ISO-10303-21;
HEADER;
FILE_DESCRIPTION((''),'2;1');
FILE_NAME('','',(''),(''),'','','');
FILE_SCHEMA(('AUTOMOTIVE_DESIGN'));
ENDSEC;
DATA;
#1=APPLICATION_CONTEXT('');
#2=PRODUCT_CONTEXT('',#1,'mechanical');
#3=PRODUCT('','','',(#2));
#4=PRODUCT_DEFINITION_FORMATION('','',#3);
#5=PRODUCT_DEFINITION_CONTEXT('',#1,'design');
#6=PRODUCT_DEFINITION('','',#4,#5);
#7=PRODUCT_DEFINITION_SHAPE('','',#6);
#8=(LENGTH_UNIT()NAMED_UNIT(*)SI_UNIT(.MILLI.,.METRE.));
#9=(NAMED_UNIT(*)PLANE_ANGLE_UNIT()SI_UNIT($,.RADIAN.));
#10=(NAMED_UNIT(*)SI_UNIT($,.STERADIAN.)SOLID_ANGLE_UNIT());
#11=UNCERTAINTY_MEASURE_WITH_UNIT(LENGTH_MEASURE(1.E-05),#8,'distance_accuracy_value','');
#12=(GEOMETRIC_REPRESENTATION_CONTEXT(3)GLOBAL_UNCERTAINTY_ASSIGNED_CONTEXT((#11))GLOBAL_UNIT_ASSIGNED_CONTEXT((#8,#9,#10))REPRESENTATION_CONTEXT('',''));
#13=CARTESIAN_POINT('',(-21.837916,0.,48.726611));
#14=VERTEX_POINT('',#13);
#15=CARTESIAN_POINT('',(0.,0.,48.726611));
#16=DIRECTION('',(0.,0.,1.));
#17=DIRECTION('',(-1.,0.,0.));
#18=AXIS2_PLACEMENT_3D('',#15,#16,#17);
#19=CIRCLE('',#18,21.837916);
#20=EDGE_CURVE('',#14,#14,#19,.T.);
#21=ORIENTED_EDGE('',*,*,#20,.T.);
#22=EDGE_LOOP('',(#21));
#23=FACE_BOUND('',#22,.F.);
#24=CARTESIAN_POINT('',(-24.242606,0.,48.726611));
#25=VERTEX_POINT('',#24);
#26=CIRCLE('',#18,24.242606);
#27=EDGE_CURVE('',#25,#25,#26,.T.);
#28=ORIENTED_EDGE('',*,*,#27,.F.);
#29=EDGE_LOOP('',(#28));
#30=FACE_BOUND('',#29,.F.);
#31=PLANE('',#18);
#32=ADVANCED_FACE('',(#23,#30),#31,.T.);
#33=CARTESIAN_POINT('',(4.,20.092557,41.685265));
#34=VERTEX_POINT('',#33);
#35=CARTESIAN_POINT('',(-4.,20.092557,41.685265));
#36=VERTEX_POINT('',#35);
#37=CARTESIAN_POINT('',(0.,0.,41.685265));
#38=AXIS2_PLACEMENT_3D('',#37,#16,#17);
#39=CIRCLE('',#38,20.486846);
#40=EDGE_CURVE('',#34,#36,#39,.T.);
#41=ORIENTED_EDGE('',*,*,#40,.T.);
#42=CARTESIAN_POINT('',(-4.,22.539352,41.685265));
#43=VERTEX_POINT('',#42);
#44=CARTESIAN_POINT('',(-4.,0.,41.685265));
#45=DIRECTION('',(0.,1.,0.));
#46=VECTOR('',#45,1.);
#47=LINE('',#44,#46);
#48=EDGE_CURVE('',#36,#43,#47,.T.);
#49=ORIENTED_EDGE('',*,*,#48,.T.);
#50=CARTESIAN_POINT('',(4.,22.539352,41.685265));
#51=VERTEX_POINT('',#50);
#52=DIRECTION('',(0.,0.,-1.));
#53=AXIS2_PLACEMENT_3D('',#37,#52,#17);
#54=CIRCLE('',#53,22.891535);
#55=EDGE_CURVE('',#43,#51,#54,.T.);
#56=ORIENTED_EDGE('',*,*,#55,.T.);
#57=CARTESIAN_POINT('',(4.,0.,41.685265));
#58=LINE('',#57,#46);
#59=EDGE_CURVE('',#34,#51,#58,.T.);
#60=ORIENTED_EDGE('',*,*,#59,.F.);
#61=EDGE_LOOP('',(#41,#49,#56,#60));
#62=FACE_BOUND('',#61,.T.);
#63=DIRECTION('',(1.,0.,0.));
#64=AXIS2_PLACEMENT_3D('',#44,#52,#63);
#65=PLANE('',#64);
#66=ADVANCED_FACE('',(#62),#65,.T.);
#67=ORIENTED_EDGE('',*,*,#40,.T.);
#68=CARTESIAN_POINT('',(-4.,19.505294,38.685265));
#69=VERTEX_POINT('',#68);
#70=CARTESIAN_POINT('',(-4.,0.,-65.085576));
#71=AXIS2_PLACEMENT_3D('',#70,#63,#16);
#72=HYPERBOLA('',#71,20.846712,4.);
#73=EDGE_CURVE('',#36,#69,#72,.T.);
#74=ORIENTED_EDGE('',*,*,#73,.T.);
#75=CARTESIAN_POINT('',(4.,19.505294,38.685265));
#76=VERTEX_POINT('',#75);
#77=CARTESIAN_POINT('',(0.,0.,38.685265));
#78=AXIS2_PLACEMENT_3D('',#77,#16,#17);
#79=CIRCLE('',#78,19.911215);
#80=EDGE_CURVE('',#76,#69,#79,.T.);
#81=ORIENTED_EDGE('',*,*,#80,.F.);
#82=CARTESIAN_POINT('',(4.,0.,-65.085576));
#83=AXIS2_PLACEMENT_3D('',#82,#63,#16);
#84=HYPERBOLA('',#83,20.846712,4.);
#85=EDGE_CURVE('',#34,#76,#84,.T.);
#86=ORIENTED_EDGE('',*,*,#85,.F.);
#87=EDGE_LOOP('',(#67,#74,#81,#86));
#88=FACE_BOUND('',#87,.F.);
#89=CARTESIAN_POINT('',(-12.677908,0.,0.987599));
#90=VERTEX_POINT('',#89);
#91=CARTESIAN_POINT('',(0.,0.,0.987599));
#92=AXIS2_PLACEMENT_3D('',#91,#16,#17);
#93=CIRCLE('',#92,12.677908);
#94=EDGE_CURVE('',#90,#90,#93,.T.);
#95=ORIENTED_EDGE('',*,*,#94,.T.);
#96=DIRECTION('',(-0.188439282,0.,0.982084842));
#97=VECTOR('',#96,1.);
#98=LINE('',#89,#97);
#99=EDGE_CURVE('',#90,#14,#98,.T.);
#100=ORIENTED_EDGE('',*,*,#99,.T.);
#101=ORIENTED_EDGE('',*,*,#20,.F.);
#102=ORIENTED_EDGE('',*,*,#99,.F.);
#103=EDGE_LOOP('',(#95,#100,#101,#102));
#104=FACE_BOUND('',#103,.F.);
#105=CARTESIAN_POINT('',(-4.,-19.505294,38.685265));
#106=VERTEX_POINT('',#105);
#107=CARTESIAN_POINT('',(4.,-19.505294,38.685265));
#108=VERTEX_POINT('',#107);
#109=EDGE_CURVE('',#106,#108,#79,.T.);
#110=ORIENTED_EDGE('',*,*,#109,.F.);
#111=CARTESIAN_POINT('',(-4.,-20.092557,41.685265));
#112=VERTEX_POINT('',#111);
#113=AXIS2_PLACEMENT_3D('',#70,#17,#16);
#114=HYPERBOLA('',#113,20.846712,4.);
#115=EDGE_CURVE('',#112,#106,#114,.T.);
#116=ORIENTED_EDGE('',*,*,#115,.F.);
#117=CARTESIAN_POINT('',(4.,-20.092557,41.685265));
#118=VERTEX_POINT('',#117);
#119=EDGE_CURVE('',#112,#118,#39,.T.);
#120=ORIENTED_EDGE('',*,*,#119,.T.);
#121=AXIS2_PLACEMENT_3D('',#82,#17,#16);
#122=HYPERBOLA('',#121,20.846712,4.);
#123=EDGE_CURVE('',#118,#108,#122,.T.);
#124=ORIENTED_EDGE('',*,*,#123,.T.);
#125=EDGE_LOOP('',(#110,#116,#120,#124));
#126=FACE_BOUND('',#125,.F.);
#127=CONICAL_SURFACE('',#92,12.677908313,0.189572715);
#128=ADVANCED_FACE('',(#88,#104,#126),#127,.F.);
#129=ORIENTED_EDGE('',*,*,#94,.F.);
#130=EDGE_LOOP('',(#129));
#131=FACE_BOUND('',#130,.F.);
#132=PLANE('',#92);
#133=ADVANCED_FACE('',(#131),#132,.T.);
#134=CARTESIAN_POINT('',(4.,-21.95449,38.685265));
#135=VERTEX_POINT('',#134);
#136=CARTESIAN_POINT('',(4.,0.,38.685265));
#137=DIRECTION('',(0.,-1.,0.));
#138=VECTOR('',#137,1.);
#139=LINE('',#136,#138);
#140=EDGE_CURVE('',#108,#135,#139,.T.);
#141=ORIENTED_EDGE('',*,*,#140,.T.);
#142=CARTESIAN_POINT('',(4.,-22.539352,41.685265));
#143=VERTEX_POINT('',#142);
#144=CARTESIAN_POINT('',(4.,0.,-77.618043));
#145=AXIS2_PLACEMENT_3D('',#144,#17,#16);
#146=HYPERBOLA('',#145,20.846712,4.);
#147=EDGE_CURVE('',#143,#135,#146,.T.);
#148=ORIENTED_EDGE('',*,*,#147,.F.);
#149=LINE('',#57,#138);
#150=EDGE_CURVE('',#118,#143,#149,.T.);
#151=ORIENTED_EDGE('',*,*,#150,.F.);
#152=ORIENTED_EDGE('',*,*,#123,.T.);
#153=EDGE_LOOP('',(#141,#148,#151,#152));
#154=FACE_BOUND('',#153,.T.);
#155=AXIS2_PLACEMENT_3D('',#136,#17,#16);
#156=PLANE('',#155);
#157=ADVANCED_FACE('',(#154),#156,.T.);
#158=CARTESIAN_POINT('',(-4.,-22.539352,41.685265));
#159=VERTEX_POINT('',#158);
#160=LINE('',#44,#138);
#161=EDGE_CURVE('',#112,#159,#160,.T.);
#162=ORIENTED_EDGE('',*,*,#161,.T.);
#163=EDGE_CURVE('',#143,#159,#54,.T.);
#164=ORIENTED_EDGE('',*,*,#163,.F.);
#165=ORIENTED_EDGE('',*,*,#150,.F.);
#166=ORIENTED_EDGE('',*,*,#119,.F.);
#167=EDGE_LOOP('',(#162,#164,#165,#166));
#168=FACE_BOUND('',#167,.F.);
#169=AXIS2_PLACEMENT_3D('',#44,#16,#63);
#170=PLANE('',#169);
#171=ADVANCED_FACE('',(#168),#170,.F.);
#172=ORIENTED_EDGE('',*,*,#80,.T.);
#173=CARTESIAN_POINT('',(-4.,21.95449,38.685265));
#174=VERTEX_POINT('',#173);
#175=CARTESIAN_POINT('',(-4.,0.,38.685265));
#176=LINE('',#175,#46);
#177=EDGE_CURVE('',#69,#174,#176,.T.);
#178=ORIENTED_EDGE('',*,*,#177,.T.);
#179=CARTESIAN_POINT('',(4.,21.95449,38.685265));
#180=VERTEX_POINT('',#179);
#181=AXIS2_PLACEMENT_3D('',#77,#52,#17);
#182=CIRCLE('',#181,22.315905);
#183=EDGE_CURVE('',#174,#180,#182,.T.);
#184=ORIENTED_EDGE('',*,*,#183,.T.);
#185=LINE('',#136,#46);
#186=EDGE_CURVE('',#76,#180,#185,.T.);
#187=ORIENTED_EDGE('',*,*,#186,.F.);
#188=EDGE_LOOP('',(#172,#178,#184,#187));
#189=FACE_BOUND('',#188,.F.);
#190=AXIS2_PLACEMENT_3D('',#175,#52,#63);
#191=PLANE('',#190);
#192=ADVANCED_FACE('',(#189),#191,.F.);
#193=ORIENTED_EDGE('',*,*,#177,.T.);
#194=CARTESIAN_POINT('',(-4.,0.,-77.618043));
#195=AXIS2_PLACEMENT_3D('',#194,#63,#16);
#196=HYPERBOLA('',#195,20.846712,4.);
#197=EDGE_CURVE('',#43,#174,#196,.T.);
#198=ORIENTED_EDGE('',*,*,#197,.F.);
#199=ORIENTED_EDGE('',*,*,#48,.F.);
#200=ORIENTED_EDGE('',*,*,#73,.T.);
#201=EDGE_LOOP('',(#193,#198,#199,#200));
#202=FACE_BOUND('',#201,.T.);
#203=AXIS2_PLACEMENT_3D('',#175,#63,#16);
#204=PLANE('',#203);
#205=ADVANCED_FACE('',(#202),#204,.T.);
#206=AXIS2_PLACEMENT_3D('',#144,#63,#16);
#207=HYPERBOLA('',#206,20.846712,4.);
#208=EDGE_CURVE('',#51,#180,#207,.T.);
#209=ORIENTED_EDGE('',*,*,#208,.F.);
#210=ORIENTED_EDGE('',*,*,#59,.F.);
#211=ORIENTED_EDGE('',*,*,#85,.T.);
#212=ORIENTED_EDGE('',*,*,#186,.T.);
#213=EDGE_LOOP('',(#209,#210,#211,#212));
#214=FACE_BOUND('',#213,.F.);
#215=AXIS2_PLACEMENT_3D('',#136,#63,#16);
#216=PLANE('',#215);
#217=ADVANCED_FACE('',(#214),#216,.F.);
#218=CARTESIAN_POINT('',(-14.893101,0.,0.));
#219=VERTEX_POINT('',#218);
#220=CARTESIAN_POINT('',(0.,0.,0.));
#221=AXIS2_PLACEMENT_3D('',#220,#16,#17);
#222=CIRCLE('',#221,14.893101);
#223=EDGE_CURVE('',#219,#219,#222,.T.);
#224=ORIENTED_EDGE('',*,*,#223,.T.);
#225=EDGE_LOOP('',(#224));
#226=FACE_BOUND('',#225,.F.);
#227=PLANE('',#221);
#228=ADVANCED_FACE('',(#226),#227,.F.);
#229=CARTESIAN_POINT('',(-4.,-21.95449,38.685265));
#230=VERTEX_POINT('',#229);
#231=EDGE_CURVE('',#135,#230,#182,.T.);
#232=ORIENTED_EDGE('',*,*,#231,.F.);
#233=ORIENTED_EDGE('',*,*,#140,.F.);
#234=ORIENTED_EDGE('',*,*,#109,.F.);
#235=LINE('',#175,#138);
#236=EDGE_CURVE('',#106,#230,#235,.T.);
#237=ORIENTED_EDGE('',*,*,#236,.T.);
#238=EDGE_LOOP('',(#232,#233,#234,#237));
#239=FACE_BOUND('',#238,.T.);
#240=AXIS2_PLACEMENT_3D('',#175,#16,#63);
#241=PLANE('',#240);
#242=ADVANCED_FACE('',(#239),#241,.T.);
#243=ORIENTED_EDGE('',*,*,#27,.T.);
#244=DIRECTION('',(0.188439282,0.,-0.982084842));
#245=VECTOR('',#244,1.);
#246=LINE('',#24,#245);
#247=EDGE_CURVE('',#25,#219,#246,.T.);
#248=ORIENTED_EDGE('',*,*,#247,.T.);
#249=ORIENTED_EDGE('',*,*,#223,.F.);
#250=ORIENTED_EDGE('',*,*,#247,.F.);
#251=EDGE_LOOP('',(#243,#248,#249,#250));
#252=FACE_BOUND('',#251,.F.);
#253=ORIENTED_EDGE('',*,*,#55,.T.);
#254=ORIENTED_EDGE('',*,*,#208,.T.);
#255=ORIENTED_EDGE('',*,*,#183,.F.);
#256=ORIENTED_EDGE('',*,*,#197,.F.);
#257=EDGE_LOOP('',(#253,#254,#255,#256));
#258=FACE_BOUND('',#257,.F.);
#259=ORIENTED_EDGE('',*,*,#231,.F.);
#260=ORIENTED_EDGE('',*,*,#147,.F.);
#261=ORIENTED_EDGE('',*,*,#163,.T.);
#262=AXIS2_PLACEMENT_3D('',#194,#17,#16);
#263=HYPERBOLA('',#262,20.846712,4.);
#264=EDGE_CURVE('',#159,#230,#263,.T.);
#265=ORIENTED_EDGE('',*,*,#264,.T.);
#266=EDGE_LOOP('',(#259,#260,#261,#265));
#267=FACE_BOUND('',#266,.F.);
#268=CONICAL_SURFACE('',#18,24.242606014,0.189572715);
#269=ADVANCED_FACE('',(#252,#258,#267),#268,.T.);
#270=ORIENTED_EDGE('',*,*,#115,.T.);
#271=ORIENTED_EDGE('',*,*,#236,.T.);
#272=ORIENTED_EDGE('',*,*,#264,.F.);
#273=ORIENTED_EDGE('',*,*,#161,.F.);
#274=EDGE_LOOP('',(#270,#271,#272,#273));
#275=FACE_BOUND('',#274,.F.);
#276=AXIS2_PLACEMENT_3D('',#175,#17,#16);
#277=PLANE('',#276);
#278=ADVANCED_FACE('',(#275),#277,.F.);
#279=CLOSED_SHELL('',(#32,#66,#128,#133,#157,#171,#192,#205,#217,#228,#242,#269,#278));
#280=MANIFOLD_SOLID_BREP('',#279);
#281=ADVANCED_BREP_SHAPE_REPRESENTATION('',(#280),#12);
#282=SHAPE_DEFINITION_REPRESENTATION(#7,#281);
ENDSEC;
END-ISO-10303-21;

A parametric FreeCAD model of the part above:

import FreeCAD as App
import Part
import Sketcher

V = App.Vector
Q = App.Units.Quantity


def add_polygon(sketch, points):
    """Adds a closed chain of lines whose ends are joined by coincident constraints."""
    first, n = sketch.GeometryCount, len(points)
    for a, b in zip(points, points[1:] + points[:1]):
        sketch.addGeometry(Part.LineSegment(App.Vector(*a, 0), App.Vector(*b, 0)), False)
    for i in range(n):
        sketch.addConstraint(Sketcher.Constraint("Coincident", first + i, 2, first + (i + 1) % n, 1))

doc = App.newDocument("Part")
body = doc.addObject("PartDesign::Body", "Body")

# Sketch on XZ plane
sketch1 = body.newObject("Sketcher::SketchObject", "Sketch")
sketch1.AttachmentSupport = (doc.getObject("XZ_Plane"), [""])
sketch1.MapMode = "FlatFace"
add_polygon(sketch1, [(-14.9, 0), (0, 0), (0, 1), (-12.7, 1), (-21.8, 48.7), (-24.2, 48.7)])  # lines 0-5
sketch1.addConstraint([
    Sketcher.Constraint("Horizontal", 0),
    Sketcher.Constraint("Vertical", 1),
    Sketcher.Constraint("Horizontal", 2),
    Sketcher.Constraint("Horizontal", 4),
    Sketcher.Constraint("Coincident", 0, 2, -1, 1),
    Sketcher.Constraint("Parallel", 3, 5),
    Sketcher.Constraint("DistanceX", 0, 1, 0, 2, Q("14.893101 mm")),
    Sketcher.Constraint("DistanceY", 1, 1, 1, 2, Q("0.987599 mm")),
    Sketcher.Constraint("DistanceX", 2, 2, 2, 1, Q("12.677908 mm")),
    Sketcher.Constraint("DistanceX", 4, 2, 4, 1, Q("2.40469 mm")),
    Sketcher.Constraint("Distance", 5, Q("49.61548 mm")),
])
revolution = body.newObject("PartDesign::Revolution", "Revolution")
revolution.Profile = sketch1
revolution.ReferenceAxis = (sketch1, ["V_Axis"])
revolution.Angle = 360

# Sketch on XZ plane
sketch2 = body.newObject("Sketcher::SketchObject", "Sketch001")
sketch2.AttachmentSupport = (doc.getObject("XZ_Plane"), [""])
sketch2.MapMode = "FlatFace"
add_polygon(sketch2, [(-4, 41.7), (-4, 38.7), (4, 38.7), (4, 41.7)])  # lines 0-3
sketch2.addConstraint([
    Sketcher.Constraint("Vertical", 0),
    Sketcher.Constraint("Horizontal", 1),
    Sketcher.Constraint("Vertical", 2),
    Sketcher.Constraint("Horizontal", 3),
    Sketcher.Constraint("DistanceX", 1, 1, 1, 2, Q("8 mm")),
    Sketcher.Constraint("DistanceY", 0, 2, 0, 1, Q("3 mm")),
    Sketcher.Constraint("DistanceX", 0, 2, -1, 1, Q("4 mm")),
    Sketcher.Constraint("DistanceY", -1, 1, 0, 2, Q("38.685265 mm")),
])
pocket1 = body.newObject("PartDesign::Pocket", "Pocket")
pocket1.Profile = sketch2
pocket1.Type = "ThroughAll"
pocket1.Midplane = True

doc.recompute()
